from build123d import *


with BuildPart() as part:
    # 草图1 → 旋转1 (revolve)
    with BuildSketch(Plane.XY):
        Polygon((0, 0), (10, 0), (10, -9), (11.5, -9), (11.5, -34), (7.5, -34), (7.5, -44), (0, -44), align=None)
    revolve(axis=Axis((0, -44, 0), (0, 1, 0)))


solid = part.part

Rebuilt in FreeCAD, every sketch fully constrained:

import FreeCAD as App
import Part
import Sketcher
Q = App.Units.Quantity


def add_polygon(sketch, points):
    """Adds a closed chain of lines whose ends are joined by coincident constraints."""
    first, n = sketch.GeometryCount, len(points)
    for a, b in zip(points, points[1:] + points[:1]):
        sketch.addGeometry(Part.LineSegment(App.Vector(*a, 0), App.Vector(*b, 0)), False)
    for i in range(n):
        sketch.addConstraint(Sketcher.Constraint("Coincident", first + i, 2, first + (i + 1) % n, 1))

doc = App.newDocument("Part")
params = doc.addObject("Spreadsheet::Sheet", "Params")
for row, (alias, value) in enumerate([
    ("sketch1_width", "10 mm"),
    ("sketch1_width2", "4 mm"),
    ("sketch1_height", "44 mm"),
    ("sketch1_height2", "25 mm"),
    ("sketch1_width3", "7.5 mm"),
    ("revolution_angle", "360 deg"),
], start=1):
    params.set(f"A{row}", alias)
    params.set(f"B{row}", "=" + value)
    params.setAlias(f"B{row}", alias)

body = doc.addObject("PartDesign::Body", "Body")

# Sketch on XY plane
sketch1 = doc.addObject("Sketcher::SketchObject", "Sketch")
body.addObject(sketch1)
sketch1.AttachmentSupport = (doc.XY_Plane, [""])
sketch1.MapMode = "FlatFace"
add_polygon(sketch1, [(10, 0), (0, 0), (0, -44), (7.5, -44), (7.5, -34), (11.5, -34), (11.5, -9), (10, -9)])  # lines 0-7
sketch1.addConstraint([
    Sketcher.Constraint("Horizontal", 0),
    Sketcher.Constraint("Vertical", 1),
    Sketcher.Constraint("Horizontal", 2),
    Sketcher.Constraint("Vertical", 3),
    Sketcher.Constraint("Horizontal", 4),
    Sketcher.Constraint("Vertical", 5),
    Sketcher.Constraint("Horizontal", 6),
    Sketcher.Constraint("Vertical", 7),
    Sketcher.Constraint("Coincident", 0, 2, -1, 1),
    Sketcher.Constraint("Equal", 0, 3),
    Sketcher.Constraint("DistanceX", 0, 2, 0, 1, Q("10 mm")),
    Sketcher.Constraint("DistanceX", 4, 1, 4, 2, Q("4 mm")),
    Sketcher.Constraint("DistanceY", 1, 2, 1, 1, Q("44 mm")),
    Sketcher.Constraint("DistanceY", 5, 1, 5, 2, Q("25 mm")),
    Sketcher.Constraint("DistanceX", 2, 1, 2, 2, Q("7.5 mm")),
])
sketch1.setExpression("Constraints[18]", "Params.sketch1_width")
sketch1.setExpression("Constraints[19]", "Params.sketch1_width2")
sketch1.setExpression("Constraints[20]", "Params.sketch1_height")
sketch1.setExpression("Constraints[21]", "Params.sketch1_height2")
sketch1.setExpression("Constraints[22]", "Params.sketch1_width3")
revolution = doc.addObject("PartDesign::Revolution", "Revolution")
body.addObject(revolution)
revolution.Profile = sketch1
revolution.ReferenceAxis = (sketch1, ["V_Axis"])
revolution.setExpression("Angle", "Params.revolution_angle")

doc.recompute()
